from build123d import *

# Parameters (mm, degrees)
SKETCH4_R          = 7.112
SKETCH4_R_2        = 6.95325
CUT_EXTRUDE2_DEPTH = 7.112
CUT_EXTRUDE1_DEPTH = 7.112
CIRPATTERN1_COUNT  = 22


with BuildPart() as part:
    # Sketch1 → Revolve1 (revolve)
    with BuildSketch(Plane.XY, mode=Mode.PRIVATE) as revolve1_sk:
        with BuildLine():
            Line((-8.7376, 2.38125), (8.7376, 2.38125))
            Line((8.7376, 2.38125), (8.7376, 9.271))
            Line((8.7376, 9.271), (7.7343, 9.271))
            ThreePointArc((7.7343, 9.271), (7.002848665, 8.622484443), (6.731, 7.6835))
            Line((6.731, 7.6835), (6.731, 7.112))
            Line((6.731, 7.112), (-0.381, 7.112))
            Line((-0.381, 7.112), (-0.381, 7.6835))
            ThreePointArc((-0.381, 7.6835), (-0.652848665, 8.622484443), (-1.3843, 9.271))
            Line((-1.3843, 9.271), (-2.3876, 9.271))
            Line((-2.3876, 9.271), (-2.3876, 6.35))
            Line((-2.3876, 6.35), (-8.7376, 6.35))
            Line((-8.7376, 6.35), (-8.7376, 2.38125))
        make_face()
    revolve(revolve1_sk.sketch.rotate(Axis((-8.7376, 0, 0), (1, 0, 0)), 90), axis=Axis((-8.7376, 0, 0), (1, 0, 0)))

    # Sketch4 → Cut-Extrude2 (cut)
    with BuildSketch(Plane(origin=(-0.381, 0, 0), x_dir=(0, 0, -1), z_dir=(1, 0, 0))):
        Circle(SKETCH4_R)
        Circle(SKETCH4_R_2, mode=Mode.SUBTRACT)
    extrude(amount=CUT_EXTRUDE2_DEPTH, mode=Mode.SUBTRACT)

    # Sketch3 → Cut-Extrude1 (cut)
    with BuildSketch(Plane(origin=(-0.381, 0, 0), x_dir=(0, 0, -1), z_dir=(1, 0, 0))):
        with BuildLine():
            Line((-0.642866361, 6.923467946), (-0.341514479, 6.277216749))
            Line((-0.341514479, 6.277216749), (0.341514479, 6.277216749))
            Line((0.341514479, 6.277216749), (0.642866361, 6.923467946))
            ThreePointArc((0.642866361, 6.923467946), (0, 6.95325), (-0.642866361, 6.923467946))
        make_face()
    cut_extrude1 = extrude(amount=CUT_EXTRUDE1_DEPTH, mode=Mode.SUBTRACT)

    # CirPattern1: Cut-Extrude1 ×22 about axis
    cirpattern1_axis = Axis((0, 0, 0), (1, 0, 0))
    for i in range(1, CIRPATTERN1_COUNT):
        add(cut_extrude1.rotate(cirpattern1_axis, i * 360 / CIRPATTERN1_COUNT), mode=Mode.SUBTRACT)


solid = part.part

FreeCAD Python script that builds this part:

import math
import FreeCAD as App
import Part
import Sketcher
from FreeCAD import Vector
Q = App.Units.Quantity

doc = App.newDocument("Part")
body = doc.addObject("PartDesign::Body", "Body")

sketch1 = body.newObject("Sketcher::SketchObject", "Sketch")
sketch1.AttachmentSupport = (doc.getObject("XY_Plane"), [""])
sketch1.MapMode = "FlatFace"
sketch1.addGeometry([
    Part.LineSegment(Vector(-8.7, 2.4, 0), Vector(8.7, 2.4, 0)),
    Part.LineSegment(Vector(8.7, 2.4, 0), Vector(8.7, 9.3, 0)),
    Part.LineSegment(Vector(8.7, 9.3, 0), Vector(7.7, 9.3, 0)),
    Part.ArcOfCircle(Part.Circle(Vector(8.5, 7.7, 0), Vector(0, 0, 1), 1.8), math.radians(115), math.radians(180)),
    Part.LineSegment(Vector(6.7, 7.7, 0), Vector(6.7, 7.1, 0)),
    Part.LineSegment(Vector(6.7, 7.1, 0), Vector(-0.4, 7.1, 0)),
    Part.LineSegment(Vector(-0.4, 7.1, 0), Vector(-0.4, 7.7, 0)),
    Part.ArcOfCircle(Part.Circle(Vector(-2.1, 7.7, 0), Vector(0, 0, 1), 1.8), math.radians(0), math.radians(65)),
    Part.LineSegment(Vector(-1.4, 9.3, 0), Vector(-2.4, 9.3, 0)),
    Part.LineSegment(Vector(-2.4, 9.3, 0), Vector(-2.4, 6.3, 0)),
    Part.LineSegment(Vector(-2.4, 6.3, 0), Vector(-8.7, 6.3, 0)),
    Part.LineSegment(Vector(-8.7, 6.3, 0), Vector(-8.7, 2.4, 0)),
], False)
sketch1.addConstraint([
    Sketcher.Constraint("Coincident", 0, 2, 1, 1),
    Sketcher.Constraint("Coincident", 1, 2, 2, 1),
    Sketcher.Constraint("Coincident", 2, 2, 3, 1),
    Sketcher.Constraint("Tangent", 3, 2, 4, 1),
    Sketcher.Constraint("Coincident", 4, 2, 5, 1),
    Sketcher.Constraint("Coincident", 5, 2, 6, 1),
    Sketcher.Constraint("Tangent", 6, 2, 7, 1),
    Sketcher.Constraint("Coincident", 7, 2, 8, 1),
    Sketcher.Constraint("Coincident", 8, 2, 9, 1),
    Sketcher.Constraint("Coincident", 9, 2, 10, 1),
    Sketcher.Constraint("Coincident", 10, 2, 11, 1),
    Sketcher.Constraint("Coincident", 11, 2, 0, 1),
    Sketcher.Constraint("Horizontal", 0),
    Sketcher.Constraint("Vertical", 1),
    Sketcher.Constraint("Horizontal", 2),
    Sketcher.Constraint("Vertical", 4),
    Sketcher.Constraint("Horizontal", 5),
    Sketcher.Constraint("Vertical", 6),
    Sketcher.Constraint("Horizontal", 8),
    Sketcher.Constraint("Vertical", 9),
    Sketcher.Constraint("Horizontal", 10),
    Sketcher.Constraint("Vertical", 11),
    Sketcher.Constraint("Equal", 3, 7),
    Sketcher.Constraint("Horizontal", 3, 3, 7, 3),
    Sketcher.Constraint("Horizontal", 2, 2, 7, 2),
    Sketcher.Constraint("Equal", 2, 8),
    Sketcher.Constraint("DistanceX", 5, 2, 5, 1, Q("0.28 in")),
    Sketcher.Constraint("DistanceX", 10, 2, 10, 1, Q("0.25 in")),
    Sketcher.Constraint("DistanceX", 0, 1, 0, 2, Q("0.688 in")),
    Sketcher.Constraint("DistanceY", 9, 2, 9, 1, Q("0.115 in")),
    Sketcher.Constraint("DistanceY", 11, 2, 11, 1, Q("0.15625 in")),
    Sketcher.Constraint("DistanceY", -1, 1, 4, 2, Q("0.28 in")),
    Sketcher.Constraint("DistanceY", -1, 1, 9, 2, Q("0.25 in")),
    Sketcher.Constraint("DistanceX", 2, 2, 2, 1, Q("0.0395 in")),
    Sketcher.Constraint("DistanceY", 4, 2, 4, 1, Q("0.0225 in")),
    Sketcher.Constraint("DistanceX", -1, 1, 0, 2, Q("0.344 in")),
])
revolution = body.newObject("PartDesign::Revolution", "Revolution")
revolution.Profile = sketch1
revolution.ReferenceAxis = (sketch1, ["H_Axis"])
revolution.Angle = 360

sketch2 = body.newObject("Sketcher::SketchObject", "Sketch001")
sketch2.AttachmentSupport = (doc.getObject("YZ_Plane"), [""])
sketch2.MapMode = "FlatFace"
sketch2.AttachmentOffset = App.Placement(Vector(0, 0, -0.015 * 25.4), App.Rotation())
sketch2.addGeometry([
    Part.Circle(Vector(0, 0, 0), Vector(0, 0, 1), 7),
    Part.Circle(Vector(0, 0, 0), Vector(0, 0, 1), 7),
], False)
sketch2.addConstraint([
    Sketcher.Constraint("Coincident", 0, 3, -1, 1),
    Sketcher.Constraint("Coincident", 1, 3, -1, 1),
    Sketcher.Constraint("Diameter", 0, Q("0.56 in")),
    Sketcher.Constraint("Diameter", 1, Q("0.5475 in")),
])
pocket1 = body.newObject("PartDesign::Pocket", "Pocket")
pocket1.Profile = sketch2
pocket1.Length = Q("0.28 in")
pocket1.Reversed = True

sketch3 = body.newObject("Sketcher::SketchObject", "Sketch002")
sketch3.AttachmentSupport = (doc.getObject("YZ_Plane"), [""])
sketch3.MapMode = "FlatFace"
sketch3.AttachmentOffset = App.Placement(Vector(0, 0, -0.015 * 25.4), App.Rotation())
sketch3.addGeometry([
    Part.LineSegment(Vector(6.9, 0.6, 0), Vector(6.3, 0.3, 0)),
    Part.LineSegment(Vector(6.3, 0.3, 0), Vector(6.3, -0.3, 0)),
    Part.LineSegment(Vector(6.3, -0.3, 0), Vector(6.9, -0.6, 0)),
    Part.ArcOfCircle(Part.Circle(Vector(0, 0, 0), Vector(0, 0, 1), 7), math.radians(-5.3), math.radians(5.3)),
], False)
sketch3.addConstraint([
    Sketcher.Constraint("Coincident", 0, 2, 1, 1),
    Sketcher.Constraint("Coincident", 1, 2, 2, 1),
    Sketcher.Constraint("Coincident", 2, 2, 3, 1),
    Sketcher.Constraint("Coincident", 3, 2, 0, 1),
    Sketcher.Constraint("Vertical", 1),
    Sketcher.Constraint("Coincident", 3, 3, -1, 1),
    Sketcher.Constraint("Vertical", 2, 2, 3, 2),
    Sketcher.Constraint("Equal", 0, 2),
    Sketcher.Constraint("Angle", 0, Q("-155 deg")),
    Sketcher.Constraint("Radius", 3, 6.95325),
    Sketcher.Constraint("DistanceY", 1, 2, 1, 1, 0.683029),
    Sketcher.Constraint("Distance", 0, 0.713059),
])
pocket2 = body.newObject("PartDesign::Pocket", "Pocket001")
pocket2.Profile = sketch3
pocket2.Length = Q("0.28 in")
pocket2.Reversed = True
doc.recompute()

polarpattern = body.newObject("PartDesign::PolarPattern", "PolarPattern")
polarpattern.Originals = [pocket2]
polarpattern.Axis = (doc.getObject("X_Axis"), [""])
polarpattern.Angle = 360
polarpattern.Occurrences = 22
body.Tip = polarpattern

doc.recompute()
